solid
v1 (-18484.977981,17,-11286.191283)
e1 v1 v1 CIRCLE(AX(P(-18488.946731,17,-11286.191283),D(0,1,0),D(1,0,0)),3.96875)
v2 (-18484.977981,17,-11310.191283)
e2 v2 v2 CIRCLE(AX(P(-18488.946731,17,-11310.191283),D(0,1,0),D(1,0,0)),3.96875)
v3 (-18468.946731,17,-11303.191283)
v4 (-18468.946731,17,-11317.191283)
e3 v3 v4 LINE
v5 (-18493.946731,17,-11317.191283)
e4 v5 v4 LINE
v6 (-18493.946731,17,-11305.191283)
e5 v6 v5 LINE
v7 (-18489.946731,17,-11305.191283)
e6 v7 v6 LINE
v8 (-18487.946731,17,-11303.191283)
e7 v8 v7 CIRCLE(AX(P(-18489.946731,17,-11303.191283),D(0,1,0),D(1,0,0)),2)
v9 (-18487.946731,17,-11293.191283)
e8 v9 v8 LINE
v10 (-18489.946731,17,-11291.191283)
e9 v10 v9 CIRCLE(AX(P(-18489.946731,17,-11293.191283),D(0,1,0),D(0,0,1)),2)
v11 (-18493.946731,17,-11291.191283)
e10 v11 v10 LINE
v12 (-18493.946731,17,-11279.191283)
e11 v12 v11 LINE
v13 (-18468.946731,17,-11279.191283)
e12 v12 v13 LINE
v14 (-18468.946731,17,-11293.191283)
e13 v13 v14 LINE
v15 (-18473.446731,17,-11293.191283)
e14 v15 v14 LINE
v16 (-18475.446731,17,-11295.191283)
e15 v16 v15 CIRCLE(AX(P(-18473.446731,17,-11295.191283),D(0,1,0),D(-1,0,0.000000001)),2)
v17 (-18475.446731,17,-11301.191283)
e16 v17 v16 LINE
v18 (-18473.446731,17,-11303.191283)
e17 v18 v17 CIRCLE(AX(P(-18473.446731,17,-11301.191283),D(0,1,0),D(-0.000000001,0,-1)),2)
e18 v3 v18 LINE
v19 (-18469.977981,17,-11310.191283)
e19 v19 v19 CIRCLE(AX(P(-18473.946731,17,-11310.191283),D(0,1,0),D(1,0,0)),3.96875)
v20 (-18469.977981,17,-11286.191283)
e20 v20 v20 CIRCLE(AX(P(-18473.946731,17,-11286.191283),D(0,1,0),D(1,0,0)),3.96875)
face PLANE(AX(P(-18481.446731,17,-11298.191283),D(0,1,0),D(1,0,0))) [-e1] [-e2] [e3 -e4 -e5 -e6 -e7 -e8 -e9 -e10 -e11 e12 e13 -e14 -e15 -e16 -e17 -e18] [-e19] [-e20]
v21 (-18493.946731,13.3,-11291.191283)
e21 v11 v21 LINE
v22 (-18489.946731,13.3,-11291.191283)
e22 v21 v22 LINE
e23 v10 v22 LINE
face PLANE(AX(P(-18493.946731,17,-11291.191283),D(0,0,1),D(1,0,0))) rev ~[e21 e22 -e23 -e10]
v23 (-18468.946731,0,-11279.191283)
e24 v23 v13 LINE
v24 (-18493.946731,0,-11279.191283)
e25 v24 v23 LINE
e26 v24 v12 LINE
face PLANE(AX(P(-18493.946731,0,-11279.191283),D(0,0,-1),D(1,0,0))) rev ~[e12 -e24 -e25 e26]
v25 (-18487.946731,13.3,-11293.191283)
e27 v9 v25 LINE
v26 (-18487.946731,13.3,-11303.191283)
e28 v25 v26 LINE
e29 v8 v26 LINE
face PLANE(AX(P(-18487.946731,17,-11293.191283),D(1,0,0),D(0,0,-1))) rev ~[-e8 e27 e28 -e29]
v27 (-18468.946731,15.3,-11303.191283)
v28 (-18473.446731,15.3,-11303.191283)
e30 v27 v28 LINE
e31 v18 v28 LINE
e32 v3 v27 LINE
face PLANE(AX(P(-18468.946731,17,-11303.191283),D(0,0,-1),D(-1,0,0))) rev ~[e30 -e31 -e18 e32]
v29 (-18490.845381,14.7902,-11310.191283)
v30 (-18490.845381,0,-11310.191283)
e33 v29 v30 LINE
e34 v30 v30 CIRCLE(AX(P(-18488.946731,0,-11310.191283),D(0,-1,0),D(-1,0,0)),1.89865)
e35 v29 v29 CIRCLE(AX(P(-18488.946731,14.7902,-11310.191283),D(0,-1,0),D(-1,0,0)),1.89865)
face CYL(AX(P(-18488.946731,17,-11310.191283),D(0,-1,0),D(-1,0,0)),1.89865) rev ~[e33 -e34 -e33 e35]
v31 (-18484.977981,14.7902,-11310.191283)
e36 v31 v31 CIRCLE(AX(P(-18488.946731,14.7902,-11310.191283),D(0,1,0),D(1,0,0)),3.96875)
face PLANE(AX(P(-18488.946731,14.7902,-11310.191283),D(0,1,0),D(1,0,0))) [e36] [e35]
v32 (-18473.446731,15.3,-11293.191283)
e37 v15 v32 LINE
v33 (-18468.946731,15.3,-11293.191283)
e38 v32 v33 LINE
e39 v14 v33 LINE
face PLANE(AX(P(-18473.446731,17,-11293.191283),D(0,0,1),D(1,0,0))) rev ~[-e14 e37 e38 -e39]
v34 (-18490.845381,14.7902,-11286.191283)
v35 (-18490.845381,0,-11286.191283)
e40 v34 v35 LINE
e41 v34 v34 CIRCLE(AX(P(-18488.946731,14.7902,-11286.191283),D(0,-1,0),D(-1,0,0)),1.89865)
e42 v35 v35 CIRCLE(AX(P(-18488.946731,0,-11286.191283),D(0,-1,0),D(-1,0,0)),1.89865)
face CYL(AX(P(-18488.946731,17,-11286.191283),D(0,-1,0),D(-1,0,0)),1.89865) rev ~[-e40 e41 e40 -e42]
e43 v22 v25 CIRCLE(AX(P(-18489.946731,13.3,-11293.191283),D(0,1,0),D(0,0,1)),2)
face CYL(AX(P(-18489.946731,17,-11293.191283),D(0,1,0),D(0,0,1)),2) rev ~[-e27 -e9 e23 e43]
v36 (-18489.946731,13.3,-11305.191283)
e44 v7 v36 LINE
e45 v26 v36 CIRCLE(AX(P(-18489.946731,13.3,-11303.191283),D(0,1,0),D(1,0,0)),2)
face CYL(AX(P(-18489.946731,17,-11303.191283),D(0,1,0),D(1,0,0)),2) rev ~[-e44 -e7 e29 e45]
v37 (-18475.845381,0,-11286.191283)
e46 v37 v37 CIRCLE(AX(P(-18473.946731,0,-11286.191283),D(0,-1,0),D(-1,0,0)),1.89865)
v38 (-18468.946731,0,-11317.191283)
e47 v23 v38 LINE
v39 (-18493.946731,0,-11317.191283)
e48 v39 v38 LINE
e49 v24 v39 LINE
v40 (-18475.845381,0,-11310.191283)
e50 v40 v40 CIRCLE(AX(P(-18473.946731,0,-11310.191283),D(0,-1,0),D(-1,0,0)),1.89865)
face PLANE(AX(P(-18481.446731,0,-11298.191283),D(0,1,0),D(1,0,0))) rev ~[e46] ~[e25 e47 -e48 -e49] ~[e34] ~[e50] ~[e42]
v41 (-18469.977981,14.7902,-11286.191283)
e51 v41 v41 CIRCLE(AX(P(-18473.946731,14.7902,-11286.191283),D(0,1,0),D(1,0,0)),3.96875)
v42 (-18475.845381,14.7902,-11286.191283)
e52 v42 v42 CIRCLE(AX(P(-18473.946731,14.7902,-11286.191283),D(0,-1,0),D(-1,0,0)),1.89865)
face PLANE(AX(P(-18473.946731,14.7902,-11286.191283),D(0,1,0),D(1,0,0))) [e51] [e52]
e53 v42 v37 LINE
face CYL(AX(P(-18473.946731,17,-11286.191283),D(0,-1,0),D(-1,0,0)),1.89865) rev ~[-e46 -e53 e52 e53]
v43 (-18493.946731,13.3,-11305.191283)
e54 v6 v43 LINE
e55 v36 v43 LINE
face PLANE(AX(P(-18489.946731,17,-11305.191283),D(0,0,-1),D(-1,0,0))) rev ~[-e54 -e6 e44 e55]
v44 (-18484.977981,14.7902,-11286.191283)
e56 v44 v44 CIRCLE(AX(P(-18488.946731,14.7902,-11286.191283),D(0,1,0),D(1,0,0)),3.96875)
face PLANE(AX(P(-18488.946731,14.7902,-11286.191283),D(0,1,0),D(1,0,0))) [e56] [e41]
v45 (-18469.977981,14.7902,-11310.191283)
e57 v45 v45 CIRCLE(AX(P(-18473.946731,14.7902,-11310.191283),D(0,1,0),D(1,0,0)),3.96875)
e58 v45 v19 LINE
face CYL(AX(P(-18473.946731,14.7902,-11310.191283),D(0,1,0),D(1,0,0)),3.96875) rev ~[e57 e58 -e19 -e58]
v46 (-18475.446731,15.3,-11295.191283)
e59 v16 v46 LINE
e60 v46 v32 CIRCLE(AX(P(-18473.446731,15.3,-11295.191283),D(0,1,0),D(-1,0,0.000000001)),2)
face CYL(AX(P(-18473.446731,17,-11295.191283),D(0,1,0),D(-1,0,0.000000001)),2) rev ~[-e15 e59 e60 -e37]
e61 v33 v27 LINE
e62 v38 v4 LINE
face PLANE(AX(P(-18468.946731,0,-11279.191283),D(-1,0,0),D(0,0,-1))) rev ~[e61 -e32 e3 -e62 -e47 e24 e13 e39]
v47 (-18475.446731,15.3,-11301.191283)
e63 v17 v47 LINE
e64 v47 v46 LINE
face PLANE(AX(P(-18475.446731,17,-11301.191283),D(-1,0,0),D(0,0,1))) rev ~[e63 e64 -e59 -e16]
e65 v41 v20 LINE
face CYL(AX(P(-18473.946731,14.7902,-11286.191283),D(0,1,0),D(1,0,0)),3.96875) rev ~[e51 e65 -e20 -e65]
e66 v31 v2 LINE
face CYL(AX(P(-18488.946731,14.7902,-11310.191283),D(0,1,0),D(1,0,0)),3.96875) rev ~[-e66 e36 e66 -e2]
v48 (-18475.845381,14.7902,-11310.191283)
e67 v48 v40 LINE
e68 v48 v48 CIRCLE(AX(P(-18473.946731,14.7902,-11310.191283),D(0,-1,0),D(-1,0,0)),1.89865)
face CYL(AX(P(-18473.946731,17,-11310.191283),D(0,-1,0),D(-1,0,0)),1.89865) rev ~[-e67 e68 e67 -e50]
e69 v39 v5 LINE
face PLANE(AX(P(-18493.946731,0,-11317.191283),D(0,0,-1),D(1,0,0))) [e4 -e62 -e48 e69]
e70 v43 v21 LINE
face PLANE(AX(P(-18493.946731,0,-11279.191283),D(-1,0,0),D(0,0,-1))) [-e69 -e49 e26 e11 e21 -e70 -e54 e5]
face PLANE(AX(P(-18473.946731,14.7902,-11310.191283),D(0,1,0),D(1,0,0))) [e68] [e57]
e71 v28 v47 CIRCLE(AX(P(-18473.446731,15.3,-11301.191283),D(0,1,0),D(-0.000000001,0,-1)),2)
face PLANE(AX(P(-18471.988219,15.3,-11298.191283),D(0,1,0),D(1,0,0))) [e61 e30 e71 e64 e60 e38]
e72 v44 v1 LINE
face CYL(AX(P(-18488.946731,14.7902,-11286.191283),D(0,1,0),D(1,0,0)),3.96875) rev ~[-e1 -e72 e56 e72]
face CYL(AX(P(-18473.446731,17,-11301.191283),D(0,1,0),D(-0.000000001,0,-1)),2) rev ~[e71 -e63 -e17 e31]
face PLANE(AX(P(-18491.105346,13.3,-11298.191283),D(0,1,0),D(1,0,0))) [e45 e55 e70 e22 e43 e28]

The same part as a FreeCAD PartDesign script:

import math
import FreeCAD as App
import Part
import Sketcher

doc = App.newDocument("Part")
body = doc.addObject("PartDesign::Body", "Body")

sketch1 = body.newObject("Sketcher::SketchObject", "Sketch")
sketch1.AttachmentSupport = (doc.getObject("XZ_Plane"), [""])
sketch1.MapMode = "FlatFace"
sketch1.addGeometry([
    Part.LineSegment(App.Vector(-18494, -11317, 0), App.Vector(-18494, -11279, 0)),
    Part.LineSegment(App.Vector(-18494, -11279, 0), App.Vector(-18469, -11279, 0)),
    Part.LineSegment(App.Vector(-18469, -11279, 0), App.Vector(-18469, -11317, 0)),
    Part.LineSegment(App.Vector(-18469, -11317, 0), App.Vector(-18494, -11317, 0)),
], False)
sketch1.addConstraint([
    Sketcher.Constraint("Coincident", 0, 2, 1, 1),
    Sketcher.Constraint("Coincident", 1, 2, 2, 1),
    Sketcher.Constraint("Coincident", 2, 2, 3, 1),
    Sketcher.Constraint("Coincident", 3, 2, 0, 1),
    Sketcher.Constraint("Vertical", 0),
    Sketcher.Constraint("Horizontal", 1),
    Sketcher.Constraint("Vertical", 2),
    Sketcher.Constraint("Horizontal", 3),
    Sketcher.Constraint("DistanceX", 1, 1, 1, 2, 25.0),
    Sketcher.Constraint("DistanceY", 0, 1, 0, 2, 38.0),
    Sketcher.Constraint("DistanceX", 0, 2, -1, 1, 18493.946731),
    Sketcher.Constraint("DistanceY", 0, 2, -1, 1, 11279.191283),
])
pad1 = body.newObject("PartDesign::Pad", "Pad")
pad1.Profile = sketch1
pad1.Length = 17
pad1.Reversed = True

sketch2 = body.newObject("Sketcher::SketchObject", "Sketch001")
sketch2.AttachmentSupport = (doc.getObject("XZ_Plane"), [""])
sketch2.MapMode = "FlatFace"
sketch2.AttachmentOffset = App.Placement(App.Vector(0, 0, -17), App.Rotation())
sketch2.addGeometry([
    Part.LineSegment(App.Vector(-18493.9, -11291.2, 0), App.Vector(-18489.9, -11291.2, 0)),
    Part.ArcOfCircle(Part.Circle(App.Vector(-18489.9, -11293.2, 0), App.Vector(0, 0, 1), 2), math.radians(0), math.radians(90)),
    Part.LineSegment(App.Vector(-18487.9, -11293.2, 0), App.Vector(-18487.9, -11303.2, 0)),
    Part.ArcOfCircle(Part.Circle(App.Vector(-18489.9, -11303.2, 0), App.Vector(0, 0, 1), 2), math.radians(-90), math.radians(0)),
    Part.LineSegment(App.Vector(-18489.9, -11305.2, 0), App.Vector(-18493.9, -11305.2, 0)),
    Part.LineSegment(App.Vector(-18493.9, -11305.2, 0), App.Vector(-18493.9, -11291.2, 0)),
], False)
sketch2.addConstraint([
    Sketcher.Constraint("Tangent", 0, 2, 1, 2),
    Sketcher.Constraint("Tangent", 1, 1, 2, 1),
    Sketcher.Constraint("Tangent", 2, 2, 3, 2),
    Sketcher.Constraint("Tangent", 3, 1, 4, 1),
    Sketcher.Constraint("Coincident", 4, 2, 5, 1),
    Sketcher.Constraint("Coincident", 5, 2, 0, 1),
    Sketcher.Constraint("Horizontal", 0),
    Sketcher.Constraint("Vertical", 2),
    Sketcher.Constraint("Horizontal", 4),
    Sketcher.Constraint("Vertical", 5),
    Sketcher.Constraint("Equal", 1, 3),
    Sketcher.Constraint("Radius", 1, 2.0),
    Sketcher.Constraint("DistanceX", 0, 1, 0, 2, 4.0),
    Sketcher.Constraint("DistanceY", 2, 2, 2, 1, 10.0),
    Sketcher.Constraint("DistanceX", 1, 3, -1, 1, 18489.946731),
    Sketcher.Constraint("DistanceY", 1, 3, -1, 1, 11293.191283),
])
pocket1 = body.newObject("PartDesign::Pocket", "Pocket")
pocket1.Profile = sketch2
pocket1.Length = 3.7
pocket1.Reversed = True

sketch3 = body.newObject("Sketcher::SketchObject", "Sketch002")
sketch3.AttachmentSupport = (doc.getObject("XZ_Plane"), [""])
sketch3.MapMode = "FlatFace"
sketch3.AttachmentOffset = App.Placement(App.Vector(0, 0, -17), App.Rotation())
sketch3.addGeometry([
    Part.LineSegment(App.Vector(-18475.446731, -11301.191283, 0), App.Vector(-18475.446731, -11295.191283, 0)),
    Part.ArcOfCircle(Part.Circle(App.Vector(-18473.446731, -11295.191283, 0), App.Vector(0, 0, 1), 2), math.radians(90), math.radians(180)),
    Part.LineSegment(App.Vector(-18473.446731, -11293.191283, 0), App.Vector(-18468.946731, -11293.191283, 0)),
    Part.LineSegment(App.Vector(-18468.946731, -11293.191283, 0), App.Vector(-18468.946731, -11303.191283, 0)),
    Part.LineSegment(App.Vector(-18468.946731, -11303.191283, 0), App.Vector(-18473.446731, -11303.191283, 0)),
    Part.ArcOfCircle(Part.Circle(App.Vector(-18473.446731, -11301.191283, 0), App.Vector(0, 0, 1), 2), math.radians(-180), math.radians(-90)),
], False)
sketch3.addConstraint([
    Sketcher.Constraint("Tangent", 0, 2, 1, 2),
    Sketcher.Constraint("Tangent", 1, 1, 2, 1),
    Sketcher.Constraint("Coincident", 2, 2, 3, 1),
    Sketcher.Constraint("Coincident", 3, 2, 4, 1),
    Sketcher.Constraint("Tangent", 4, 2, 5, 2),
    Sketcher.Constraint("Tangent", 5, 1, 0, 1),
    Sketcher.Constraint("Vertical", 0),
    Sketcher.Constraint("Horizontal", 2),
    Sketcher.Constraint("Vertical", 3),
    Sketcher.Constraint("Horizontal", 4),
    Sketcher.Constraint("Equal", 1, 5),
    Sketcher.Constraint("Radius", 1, 2.0),
    Sketcher.Constraint("DistanceY", 0, 1, 0, 2, 6.0),
    Sketcher.Constraint("DistanceX", 2, 1, 2, 2, 4.5),
    Sketcher.Constraint("DistanceX", 1, 3, -1, 1, 18473.446731),
    Sketcher.Constraint("DistanceY", 1, 3, -1, 1, 11295.191283),
])
pocket2 = body.newObject("PartDesign::Pocket", "Pocket001")
pocket2.Profile = sketch3
pocket2.Length = 1.7
pocket2.Reversed = True

sketch4 = body.newObject("Sketcher::SketchObject", "Sketch003")
sketch4.AttachmentSupport = (doc.getObject("XZ_Plane"), [""])
sketch4.MapMode = "FlatFace"
sketch4.AttachmentOffset = App.Placement(App.Vector(0, 0, -17), App.Rotation())
sketch4.addGeometry([
    Part.Circle(App.Vector(-18488.9, -11310.2, 0), App.Vector(0, 0, 1), 1.9),
    Part.Circle(App.Vector(-18473.9, -11310.2, 0), App.Vector(0, 0, 1), 1.9),
    Part.Circle(App.Vector(-18473.9, -11286.2, 0), App.Vector(0, 0, 1), 1.9),
    Part.Circle(App.Vector(-18488.9, -11286.2, 0), App.Vector(0, 0, 1), 1.9),
], False)
sketch4.addConstraint([
    Sketcher.Constraint("Equal", 0, 1),
    Sketcher.Constraint("Equal", 1, 2),
    Sketcher.Constraint("Equal", 2, 3),
    Sketcher.Constraint("Horizontal", 0, 3, 1, 3),
    Sketcher.Constraint("Horizontal", 2, 3, 3, 3),
    Sketcher.Constraint("Vertical", 1, 3, 2, 3),
    Sketcher.Constraint("Vertical", 0, 3, 3, 3),
    Sketcher.Constraint("DistanceX", 0, 3, 1, 3, 15.0),
    Sketcher.Constraint("DistanceY", 1, 3, 2, 3, 24.0),
    Sketcher.Constraint("Diameter", 0, 3.7973),
    Sketcher.Constraint("DistanceX", 0, 3, -1, 1, 18488.946731),
    Sketcher.Constraint("DistanceY", 0, 3, -1, 1, 11310.191283),
])
doc.recompute()
hole = body.newObject("PartDesign::Hole", "Hole")
hole.Profile = sketch4
hole.ThreadType = "None"
hole.Diameter = 3.7973
hole.DepthType = "ThroughAll"
hole.HoleCutType = "Counterbore"
hole.HoleCutDiameter = 7.9375
hole.HoleCutDepth = 2.2098
hole.Reversed = True

doc.recompute()
